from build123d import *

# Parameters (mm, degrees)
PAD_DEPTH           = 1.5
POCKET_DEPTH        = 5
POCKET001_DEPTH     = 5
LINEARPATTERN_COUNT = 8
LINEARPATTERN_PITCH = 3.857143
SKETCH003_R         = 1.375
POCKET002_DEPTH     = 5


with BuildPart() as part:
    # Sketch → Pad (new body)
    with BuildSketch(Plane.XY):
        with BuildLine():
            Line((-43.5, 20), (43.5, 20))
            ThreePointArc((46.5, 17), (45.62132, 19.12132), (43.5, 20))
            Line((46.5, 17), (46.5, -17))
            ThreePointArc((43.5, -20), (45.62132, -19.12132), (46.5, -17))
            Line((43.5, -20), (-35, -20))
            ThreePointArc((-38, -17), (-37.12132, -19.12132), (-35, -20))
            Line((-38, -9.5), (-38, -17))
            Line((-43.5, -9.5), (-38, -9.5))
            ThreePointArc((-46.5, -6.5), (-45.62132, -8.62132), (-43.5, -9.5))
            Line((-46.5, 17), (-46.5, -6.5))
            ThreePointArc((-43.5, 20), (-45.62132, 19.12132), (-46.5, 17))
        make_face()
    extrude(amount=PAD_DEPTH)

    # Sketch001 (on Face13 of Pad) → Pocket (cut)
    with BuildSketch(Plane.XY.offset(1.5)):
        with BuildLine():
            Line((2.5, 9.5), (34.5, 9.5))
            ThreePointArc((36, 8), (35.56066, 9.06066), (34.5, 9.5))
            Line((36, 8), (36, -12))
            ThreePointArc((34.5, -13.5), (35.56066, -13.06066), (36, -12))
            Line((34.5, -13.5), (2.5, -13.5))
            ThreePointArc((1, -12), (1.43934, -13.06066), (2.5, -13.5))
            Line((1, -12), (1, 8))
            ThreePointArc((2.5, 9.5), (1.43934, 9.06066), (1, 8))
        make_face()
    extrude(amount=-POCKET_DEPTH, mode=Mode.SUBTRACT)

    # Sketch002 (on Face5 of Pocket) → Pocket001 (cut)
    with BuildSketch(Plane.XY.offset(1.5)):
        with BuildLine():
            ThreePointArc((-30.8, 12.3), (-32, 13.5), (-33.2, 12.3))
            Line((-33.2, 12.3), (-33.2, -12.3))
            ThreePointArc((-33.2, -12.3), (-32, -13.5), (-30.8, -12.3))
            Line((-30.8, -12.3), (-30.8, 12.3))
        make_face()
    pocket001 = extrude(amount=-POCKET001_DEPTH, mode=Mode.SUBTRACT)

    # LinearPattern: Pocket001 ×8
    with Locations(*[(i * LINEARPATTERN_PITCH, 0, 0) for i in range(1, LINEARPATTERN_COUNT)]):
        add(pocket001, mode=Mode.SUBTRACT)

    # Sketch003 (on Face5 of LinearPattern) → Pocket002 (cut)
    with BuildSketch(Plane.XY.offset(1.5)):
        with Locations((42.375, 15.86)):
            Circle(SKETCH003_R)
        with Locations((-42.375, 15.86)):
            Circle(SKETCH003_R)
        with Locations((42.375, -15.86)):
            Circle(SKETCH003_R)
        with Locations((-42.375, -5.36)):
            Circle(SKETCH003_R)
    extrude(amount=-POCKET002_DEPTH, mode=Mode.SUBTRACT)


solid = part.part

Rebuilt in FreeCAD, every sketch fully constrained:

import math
import FreeCAD as App
import Part
import Sketcher
from FreeCAD import Vector
Q = App.Units.Quantity

doc = App.newDocument("Part")
body = doc.addObject("PartDesign::Body", "Body")

sketch1 = doc.addObject("Sketcher::SketchObject", "Sketch")
body.addObject(sketch1)
sketch1.AttachmentSupport = (doc.XY_Plane, [""])
sketch1.MapMode = "FlatFace"
sketch1.addGeometry(Part.LineSegment(Vector(43.5, 20, 0), Vector(-43.5, 20, 0)), False)
sketch1.addGeometry(Part.ArcOfCircle(Part.Circle(Vector(-43.5, 17, 0), Vector(0, 0, 1), 3), math.radians(90), math.radians(180)), False)
sketch1.addGeometry(Part.LineSegment(Vector(-46.5, 17, 0), Vector(-46.5, -6.5, 0)), False)
sketch1.addGeometry(Part.ArcOfCircle(Part.Circle(Vector(-43.5, -6.5, 0), Vector(0, 0, 1), 3), math.radians(-180), math.radians(-90)), False)
sketch1.addGeometry(Part.LineSegment(Vector(-43.5, -9.5, 0), Vector(-38, -9.5, 0)), False)
sketch1.addGeometry(Part.LineSegment(Vector(-38, -9.5, 0), Vector(-38, -17, 0)), False)
sketch1.addGeometry(Part.ArcOfCircle(Part.Circle(Vector(-35, -17, 0), Vector(0, 0, 1), 3), math.radians(-180), math.radians(-90)), False)
sketch1.addGeometry(Part.LineSegment(Vector(-35, -20, 0), Vector(43.5, -20, 0)), False)
sketch1.addGeometry(Part.ArcOfCircle(Part.Circle(Vector(43.5, -17, 0), Vector(0, 0, 1), 3), math.radians(-90), math.radians(0)), False)
sketch1.addGeometry(Part.LineSegment(Vector(46.5, -17, 0), Vector(46.5, 17, 0)), False)
sketch1.addGeometry(Part.ArcOfCircle(Part.Circle(Vector(43.5, 17, 0), Vector(0, 0, 1), 3), math.radians(0), math.radians(90)), False)
sketch1.addConstraint(Sketcher.Constraint("Tangent", 0, 2, 1, 1))
sketch1.addConstraint(Sketcher.Constraint("Tangent", 1, 2, 2, 1))
sketch1.addConstraint(Sketcher.Constraint("Tangent", 2, 2, 3, 1))
sketch1.addConstraint(Sketcher.Constraint("Tangent", 3, 2, 4, 1))
sketch1.addConstraint(Sketcher.Constraint("Coincident", 4, 2, 5, 1))
sketch1.addConstraint(Sketcher.Constraint("Tangent", 5, 2, 6, 1))
sketch1.addConstraint(Sketcher.Constraint("Tangent", 6, 2, 7, 1))
sketch1.addConstraint(Sketcher.Constraint("Tangent", 7, 2, 8, 1))
sketch1.addConstraint(Sketcher.Constraint("Tangent", 8, 2, 9, 1))
sketch1.addConstraint(Sketcher.Constraint("Tangent", 9, 2, 10, 1))
sketch1.addConstraint(Sketcher.Constraint("Tangent", 10, 2, 0, 1))
sketch1.addConstraint(Sketcher.Constraint("Horizontal", 0))
sketch1.addConstraint(Sketcher.Constraint("Vertical", 2))
sketch1.addConstraint(Sketcher.Constraint("Horizontal", 4))
sketch1.addConstraint(Sketcher.Constraint("Vertical", 5))
sketch1.addConstraint(Sketcher.Constraint("Horizontal", 7))
sketch1.addConstraint(Sketcher.Constraint("Vertical", 9))
sketch1.addConstraint(Sketcher.Constraint("Equal", 1, 3))
sketch1.addConstraint(Sketcher.Constraint("Equal", 3, 6))
sketch1.addConstraint(Sketcher.Constraint("Equal", 6, 8))
sketch1.addConstraint(Sketcher.Constraint("Equal", 8, 10))
sketch1.addConstraint(Sketcher.Constraint("Symmetric", 1, 3, 8, 3, -1, 1))
sketch1.addConstraint(Sketcher.Constraint("Radius", 1, Q("3.000001 mm")))
sketch1.addConstraint(Sketcher.Constraint("DistanceX", 0, 2, 0, 1, Q("87 mm")))
sketch1.addConstraint(Sketcher.Constraint("DistanceY", 9, 1, 9, 2, Q("34 mm")))
sketch1.addConstraint(Sketcher.Constraint("DistanceX", 4, 1, 4, 2, Q("5.5 mm")))
sketch1.addConstraint(Sketcher.Constraint("DistanceY", 2, 2, 2, 1, Q("23.5 mm")))
pad1 = doc.addObject("PartDesign::Pad", "Pad")
body.addObject(pad1)
pad1.Profile = sketch1
pad1.Length = 1.5

sketch2 = doc.addObject("Sketcher::SketchObject", "Sketch001")
body.addObject(sketch2)
sketch2.AttachmentSupport = (doc.XY_Plane, [""])
sketch2.MapMode = "FlatFace"
sketch2.AttachmentOffset = App.Placement(Vector(0, 0, 1.5), App.Rotation())
sketch2.addGeometry(Part.LineSegment(Vector(34.5, 9.5, 0), Vector(2.5, 9.5, 0)), False)
sketch2.addGeometry(Part.ArcOfCircle(Part.Circle(Vector(2.5, 8, 0), Vector(0, 0, 1), 1.5), math.radians(90), math.radians(180)), False)
sketch2.addGeometry(Part.LineSegment(Vector(1, 8, 0), Vector(1, -12, 0)), False)
sketch2.addGeometry(Part.ArcOfCircle(Part.Circle(Vector(2.5, -12, 0), Vector(0, 0, 1), 1.5), math.radians(-180), math.radians(-90)), False)
sketch2.addGeometry(Part.LineSegment(Vector(2.5, -13.5, 0), Vector(34.5, -13.5, 0)), False)
sketch2.addGeometry(Part.ArcOfCircle(Part.Circle(Vector(34.5, -12, 0), Vector(0, 0, 1), 1.5), math.radians(-90), math.radians(0)), False)
sketch2.addGeometry(Part.LineSegment(Vector(36, -12, 0), Vector(36, 8, 0)), False)
sketch2.addGeometry(Part.ArcOfCircle(Part.Circle(Vector(34.5, 8, 0), Vector(0, 0, 1), 1.5), math.radians(0), math.radians(90)), False)
sketch2.addConstraint(Sketcher.Constraint("Tangent", 0, 2, 1, 1))
sketch2.addConstraint(Sketcher.Constraint("Tangent", 1, 2, 2, 1))
sketch2.addConstraint(Sketcher.Constraint("Tangent", 2, 2, 3, 1))
sketch2.addConstraint(Sketcher.Constraint("Tangent", 3, 2, 4, 1))
sketch2.addConstraint(Sketcher.Constraint("Tangent", 4, 2, 5, 1))
sketch2.addConstraint(Sketcher.Constraint("Tangent", 5, 2, 6, 1))
sketch2.addConstraint(Sketcher.Constraint("Tangent", 6, 2, 7, 1))
sketch2.addConstraint(Sketcher.Constraint("Tangent", 7, 2, 0, 1))
sketch2.addConstraint(Sketcher.Constraint("Horizontal", 0))
sketch2.addConstraint(Sketcher.Constraint("Vertical", 2))
sketch2.addConstraint(Sketcher.Constraint("Horizontal", 4))
sketch2.addConstraint(Sketcher.Constraint("Vertical", 6))
sketch2.addConstraint(Sketcher.Constraint("Equal", 1, 3))
sketch2.addConstraint(Sketcher.Constraint("Equal", 3, 5))
sketch2.addConstraint(Sketcher.Constraint("Equal", 5, 7))
sketch2.addConstraint(Sketcher.Constraint("Radius", 1, Q("1.500001 mm")))
sketch2.addConstraint(Sketcher.Constraint("DistanceX", 0, 2, 0, 1, Q("32 mm")))
sketch2.addConstraint(Sketcher.Constraint("DistanceY", 2, 2, 2, 1, Q("20 mm")))
sketch2.addConstraint(Sketcher.Constraint("DistanceY", -1, 1, 1, 3, Q("7.999999 mm")))
sketch2.addConstraint(Sketcher.Constraint("DistanceX", -1, 1, 1, 2, Q("1 mm")))
pocket1 = doc.addObject("PartDesign::Pocket", "Pocket")
body.addObject(pocket1)
pocket1.Profile = sketch2
pocket1.Length = 5

sketch3 = doc.addObject("Sketcher::SketchObject", "Sketch002")
body.addObject(sketch3)
sketch3.AttachmentSupport = (doc.XY_Plane, [""])
sketch3.MapMode = "FlatFace"
sketch3.AttachmentOffset = App.Placement(Vector(0, 0, 1.5), App.Rotation())
sketch3.addGeometry(Part.ArcOfCircle(Part.Circle(Vector(-32, 12.3, 0), Vector(0, 0, 1), 1.2), math.radians(0), math.radians(180)), False)
sketch3.addGeometry(Part.LineSegment(Vector(-33.2, 12.3, 0), Vector(-33.2, -12.3, 0)), False)
sketch3.addGeometry(Part.ArcOfCircle(Part.Circle(Vector(-32, -12.3, 0), Vector(0, 0, 1), 1.2), math.radians(180), math.radians(360)), False)
sketch3.addGeometry(Part.LineSegment(Vector(-30.8, -12.3, 0), Vector(-30.8, 12.3, 0)), False)
sketch3.addConstraint(Sketcher.Constraint("Tangent", 0, 2, 1, 1))
sketch3.addConstraint(Sketcher.Constraint("Tangent", 1, 2, 2, 1))
sketch3.addConstraint(Sketcher.Constraint("Tangent", 2, 2, 3, 1))
sketch3.addConstraint(Sketcher.Constraint("Tangent", 3, 2, 0, 1))
sketch3.addConstraint(Sketcher.Constraint("Vertical", 1))
sketch3.addConstraint(Sketcher.Constraint("Vertical", 3))
sketch3.addConstraint(Sketcher.Constraint("Radius", 0, Q("1.2 mm")))
sketch3.addConstraint(Sketcher.Constraint("DistanceY", 1, 2, 1, 1, Q("24.6 mm")))
sketch3.addConstraint(Sketcher.Constraint("DistanceX", 0, 3, -1, 1, Q("32 mm")))
sketch3.addConstraint(Sketcher.Constraint("DistanceY", -1, 1, 0, 3, Q("12.3 mm")))
pocket2 = doc.addObject("PartDesign::Pocket", "Pocket001")
body.addObject(pocket2)
pocket2.Profile = sketch3
pocket2.Length = 5
doc.recompute()

linearpattern = doc.addObject("PartDesign::LinearPattern", "LinearPattern")
body.addObject(linearpattern)
linearpattern.Originals = [pocket2]
linearpattern.Direction = (doc.X_Axis, [""])
linearpattern.Mode = "offset"
linearpattern.Offset = 3.857143
linearpattern.Occurrences = 8
body.Tip = linearpattern

sketch4 = doc.addObject("Sketcher::SketchObject", "Sketch003")
body.addObject(sketch4)
sketch4.AttachmentSupport = (doc.XY_Plane, [""])
sketch4.MapMode = "FlatFace"
sketch4.AttachmentOffset = App.Placement(Vector(0, 0, 1.5), App.Rotation())
sketch4.addGeometry(Part.Circle(Vector(42.4, 15.9, 0), Vector(0, 0, 1), 1.4), False)
sketch4.addGeometry(Part.Circle(Vector(-42.4, 15.9, 0), Vector(0, 0, 1), 1.4), False)
sketch4.addGeometry(Part.Circle(Vector(42.4, -15.9, 0), Vector(0, 0, 1), 1.4), False)
sketch4.addGeometry(Part.Circle(Vector(-42.4, -5.4, 0), Vector(0, 0, 1), 1.4), False)
sketch4.addConstraint(Sketcher.Constraint("Equal", 0, 1))
sketch4.addConstraint(Sketcher.Constraint("Equal", 1, 2))
sketch4.addConstraint(Sketcher.Constraint("Equal", 2, 3))
sketch4.addConstraint(Sketcher.Constraint("Symmetric", 1, 3, 2, 3, -1, 1))
sketch4.addConstraint(Sketcher.Constraint("Symmetric", 0, 3, 1, 3, -2))
sketch4.addConstraint(Sketcher.Constraint("Vertical", 1, 3, 3, 3))
sketch4.addConstraint(Sketcher.Constraint("Diameter", 0, Q("2.75 mm")))
sketch4.addConstraint(Sketcher.Constraint("DistanceY", 2, 3, 3, 3, Q("10.5 mm")))
sketch4.addConstraint(Sketcher.Constraint("DistanceY", -1, 1, 0, 3, Q("15.86 mm")))
sketch4.addConstraint(Sketcher.Constraint("DistanceX", 1, 3, 0, 3, Q("84.75 mm")))
pocket3 = doc.addObject("PartDesign::Pocket", "Pocket002")
body.addObject(pocket3)
pocket3.Profile = sketch4
pocket3.Length = 5

doc.recompute()
